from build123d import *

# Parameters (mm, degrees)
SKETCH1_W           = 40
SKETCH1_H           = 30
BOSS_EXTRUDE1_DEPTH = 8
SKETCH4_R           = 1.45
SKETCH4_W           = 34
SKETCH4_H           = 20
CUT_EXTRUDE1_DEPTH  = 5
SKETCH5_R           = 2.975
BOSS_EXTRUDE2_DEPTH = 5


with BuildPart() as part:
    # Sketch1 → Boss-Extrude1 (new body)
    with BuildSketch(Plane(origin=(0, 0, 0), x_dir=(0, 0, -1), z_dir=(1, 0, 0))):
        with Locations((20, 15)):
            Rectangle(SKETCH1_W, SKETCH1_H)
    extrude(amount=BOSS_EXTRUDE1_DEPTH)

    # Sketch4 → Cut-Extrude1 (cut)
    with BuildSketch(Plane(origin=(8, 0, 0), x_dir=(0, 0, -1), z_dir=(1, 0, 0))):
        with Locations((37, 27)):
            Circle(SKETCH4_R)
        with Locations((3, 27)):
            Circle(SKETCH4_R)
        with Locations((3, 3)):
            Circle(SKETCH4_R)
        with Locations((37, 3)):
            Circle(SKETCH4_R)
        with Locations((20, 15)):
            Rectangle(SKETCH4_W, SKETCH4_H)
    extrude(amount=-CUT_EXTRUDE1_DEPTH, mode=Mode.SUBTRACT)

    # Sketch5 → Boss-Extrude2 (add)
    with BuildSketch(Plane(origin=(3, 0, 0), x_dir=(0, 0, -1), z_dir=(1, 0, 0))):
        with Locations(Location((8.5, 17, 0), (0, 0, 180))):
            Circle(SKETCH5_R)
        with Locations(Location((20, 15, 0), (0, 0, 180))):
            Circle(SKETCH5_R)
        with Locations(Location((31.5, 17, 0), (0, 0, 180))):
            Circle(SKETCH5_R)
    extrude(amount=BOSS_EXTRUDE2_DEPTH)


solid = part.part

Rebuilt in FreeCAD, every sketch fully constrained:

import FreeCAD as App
import Part
import Sketcher
from FreeCAD import Vector
Q = App.Units.Quantity

doc = App.newDocument("Part")
body = doc.addObject("PartDesign::Body", "Body")

sketch1 = doc.addObject("Sketcher::SketchObject", "Sketch")
body.addObject(sketch1)
sketch1.AttachmentSupport = (doc.YZ_Plane, [""])
sketch1.MapMode = "FlatFace"
sketch1.addGeometry(Part.LineSegment(Vector(30, 0, 0), Vector(0, 0, 0)), False)
sketch1.addGeometry(Part.LineSegment(Vector(0, 0, 0), Vector(0, -40, 0)), False)
sketch1.addGeometry(Part.LineSegment(Vector(0, -40, 0), Vector(30, -40, 0)), False)
sketch1.addGeometry(Part.LineSegment(Vector(30, -40, 0), Vector(30, 0, 0)), False)
sketch1.addConstraint(Sketcher.Constraint("Coincident", 0, 2, 1, 1))
sketch1.addConstraint(Sketcher.Constraint("Coincident", 1, 2, 2, 1))
sketch1.addConstraint(Sketcher.Constraint("Coincident", 2, 2, 3, 1))
sketch1.addConstraint(Sketcher.Constraint("Coincident", 3, 2, 0, 1))
sketch1.addConstraint(Sketcher.Constraint("Horizontal", 0))
sketch1.addConstraint(Sketcher.Constraint("Vertical", 1))
sketch1.addConstraint(Sketcher.Constraint("Horizontal", 2))
sketch1.addConstraint(Sketcher.Constraint("Vertical", 3))
sketch1.addConstraint(Sketcher.Constraint("Coincident", 0, 2, -1, 1))
sketch1.addConstraint(Sketcher.Constraint("DistanceX", 0, 2, 0, 1, Q("30 mm")))
sketch1.addConstraint(Sketcher.Constraint("DistanceY", 1, 2, 1, 1, Q("40 mm")))
pad1 = doc.addObject("PartDesign::Pad", "Pad")
body.addObject(pad1)
pad1.Profile = sketch1
pad1.Length = 8

sketch2 = doc.addObject("Sketcher::SketchObject", "Sketch001")
body.addObject(sketch2)
sketch2.AttachmentSupport = (doc.YZ_Plane, [""])
sketch2.MapMode = "FlatFace"
sketch2.AttachmentOffset = App.Placement(Vector(0, 0, 8), App.Rotation())
sketch2.addGeometry(Part.Circle(Vector(27, -37, 0), Vector(0, 0, 1), 1.45), False)
sketch2.addGeometry(Part.Circle(Vector(27, -3, 0), Vector(0, 0, 1), 1.45), False)
sketch2.addGeometry(Part.Circle(Vector(3, -3, 0), Vector(0, 0, 1), 1.45), False)
sketch2.addGeometry(Part.Circle(Vector(3, -37, 0), Vector(0, 0, 1), 1.45), False)
sketch2.addGeometry(Part.LineSegment(Vector(25, -3, 0), Vector(5, -3, 0)), False)
sketch2.addGeometry(Part.LineSegment(Vector(5, -3, 0), Vector(5, -37, 0)), False)
sketch2.addGeometry(Part.LineSegment(Vector(5, -37, 0), Vector(25, -37, 0)), False)
sketch2.addGeometry(Part.LineSegment(Vector(25, -37, 0), Vector(25, -3, 0)), False)
sketch2.addConstraint(Sketcher.Constraint("Coincident", 4, 2, 5, 1))
sketch2.addConstraint(Sketcher.Constraint("Coincident", 5, 2, 6, 1))
sketch2.addConstraint(Sketcher.Constraint("Coincident", 6, 2, 7, 1))
sketch2.addConstraint(Sketcher.Constraint("Coincident", 7, 2, 4, 1))
sketch2.addConstraint(Sketcher.Constraint("Horizontal", 4))
sketch2.addConstraint(Sketcher.Constraint("Vertical", 5))
sketch2.addConstraint(Sketcher.Constraint("Horizontal", 6))
sketch2.addConstraint(Sketcher.Constraint("Vertical", 7))
sketch2.addConstraint(Sketcher.Constraint("Equal", 0, 1))
sketch2.addConstraint(Sketcher.Constraint("Equal", 1, 2))
sketch2.addConstraint(Sketcher.Constraint("Equal", 2, 3))
sketch2.addConstraint(Sketcher.Constraint("Horizontal", 1, 3, 2, 3))
sketch2.addConstraint(Sketcher.Constraint("Horizontal", 0, 3, 3, 3))
sketch2.addConstraint(Sketcher.Constraint("Horizontal", 2, 3, 4, 2))
sketch2.addConstraint(Sketcher.Constraint("Horizontal", 3, 3, 5, 2))
sketch2.addConstraint(Sketcher.Constraint("Vertical", 0, 3, 1, 3))
sketch2.addConstraint(Sketcher.Constraint("Vertical", 2, 3, 3, 3))
sketch2.addConstraint(Sketcher.Constraint("Diameter", 0, Q("2.9 mm")))
sketch2.addConstraint(Sketcher.Constraint("DistanceX", 4, 2, 4, 1, Q("20 mm")))
sketch2.addConstraint(Sketcher.Constraint("DistanceY", 5, 2, 5, 1, Q("34 mm")))
sketch2.addConstraint(Sketcher.Constraint("DistanceX", -1, 1, 0, 3, Q("27 mm")))
sketch2.addConstraint(Sketcher.Constraint("DistanceY", 0, 3, -1, 1, Q("37 mm")))
sketch2.addConstraint(Sketcher.Constraint("DistanceX", -1, 1, 2, 3, Q("3 mm")))
sketch2.addConstraint(Sketcher.Constraint("DistanceX", -1, 1, 4, 2, Q("5 mm")))
pocket1 = doc.addObject("PartDesign::Pocket", "Pocket")
body.addObject(pocket1)
pocket1.Profile = sketch2
pocket1.Length = 5

sketch3 = doc.addObject("Sketcher::SketchObject", "Sketch002")
body.addObject(sketch3)
sketch3.AttachmentSupport = (doc.YZ_Plane, [""])
sketch3.MapMode = "FlatFace"
sketch3.AttachmentOffset = App.Placement(Vector(0, 0, 3), App.Rotation())
sketch3.addGeometry(Part.Circle(Vector(17, -8.5, 0), Vector(0, 0, 1), 2.975), False)
sketch3.addGeometry(Part.Circle(Vector(15, -20, 0), Vector(0, 0, 1), 2.975), False)
sketch3.addGeometry(Part.Circle(Vector(17, -31.5, 0), Vector(0, 0, 1), 2.975), False)
sketch3.addConstraint(Sketcher.Constraint("Equal", 0, 1))
sketch3.addConstraint(Sketcher.Constraint("Equal", 1, 2))
sketch3.addConstraint(Sketcher.Constraint("Vertical", 0, 3, 2, 3))
sketch3.addConstraint(Sketcher.Constraint("Diameter", 0, Q("5.95 mm")))
sketch3.addConstraint(Sketcher.Constraint("DistanceX", -1, 1, 0, 3, Q("17 mm")))
sketch3.addConstraint(Sketcher.Constraint("DistanceX", -1, 1, 1, 3, Q("15 mm")))
sketch3.addConstraint(Sketcher.Constraint("DistanceY", 1, 3, -1, 1, Q("20 mm")))
sketch3.addConstraint(Sketcher.Constraint("DistanceY", 2, 3, 0, 3, Q("23 mm")))
sketch3.addConstraint(Sketcher.Constraint("DistanceY", 0, 3, -1, 1, Q("8.5 mm")))
pad2 = doc.addObject("PartDesign::Pad", "Pad001")
body.addObject(pad2)
pad2.Profile = sketch3
pad2.Length = 5

doc.recompute()
